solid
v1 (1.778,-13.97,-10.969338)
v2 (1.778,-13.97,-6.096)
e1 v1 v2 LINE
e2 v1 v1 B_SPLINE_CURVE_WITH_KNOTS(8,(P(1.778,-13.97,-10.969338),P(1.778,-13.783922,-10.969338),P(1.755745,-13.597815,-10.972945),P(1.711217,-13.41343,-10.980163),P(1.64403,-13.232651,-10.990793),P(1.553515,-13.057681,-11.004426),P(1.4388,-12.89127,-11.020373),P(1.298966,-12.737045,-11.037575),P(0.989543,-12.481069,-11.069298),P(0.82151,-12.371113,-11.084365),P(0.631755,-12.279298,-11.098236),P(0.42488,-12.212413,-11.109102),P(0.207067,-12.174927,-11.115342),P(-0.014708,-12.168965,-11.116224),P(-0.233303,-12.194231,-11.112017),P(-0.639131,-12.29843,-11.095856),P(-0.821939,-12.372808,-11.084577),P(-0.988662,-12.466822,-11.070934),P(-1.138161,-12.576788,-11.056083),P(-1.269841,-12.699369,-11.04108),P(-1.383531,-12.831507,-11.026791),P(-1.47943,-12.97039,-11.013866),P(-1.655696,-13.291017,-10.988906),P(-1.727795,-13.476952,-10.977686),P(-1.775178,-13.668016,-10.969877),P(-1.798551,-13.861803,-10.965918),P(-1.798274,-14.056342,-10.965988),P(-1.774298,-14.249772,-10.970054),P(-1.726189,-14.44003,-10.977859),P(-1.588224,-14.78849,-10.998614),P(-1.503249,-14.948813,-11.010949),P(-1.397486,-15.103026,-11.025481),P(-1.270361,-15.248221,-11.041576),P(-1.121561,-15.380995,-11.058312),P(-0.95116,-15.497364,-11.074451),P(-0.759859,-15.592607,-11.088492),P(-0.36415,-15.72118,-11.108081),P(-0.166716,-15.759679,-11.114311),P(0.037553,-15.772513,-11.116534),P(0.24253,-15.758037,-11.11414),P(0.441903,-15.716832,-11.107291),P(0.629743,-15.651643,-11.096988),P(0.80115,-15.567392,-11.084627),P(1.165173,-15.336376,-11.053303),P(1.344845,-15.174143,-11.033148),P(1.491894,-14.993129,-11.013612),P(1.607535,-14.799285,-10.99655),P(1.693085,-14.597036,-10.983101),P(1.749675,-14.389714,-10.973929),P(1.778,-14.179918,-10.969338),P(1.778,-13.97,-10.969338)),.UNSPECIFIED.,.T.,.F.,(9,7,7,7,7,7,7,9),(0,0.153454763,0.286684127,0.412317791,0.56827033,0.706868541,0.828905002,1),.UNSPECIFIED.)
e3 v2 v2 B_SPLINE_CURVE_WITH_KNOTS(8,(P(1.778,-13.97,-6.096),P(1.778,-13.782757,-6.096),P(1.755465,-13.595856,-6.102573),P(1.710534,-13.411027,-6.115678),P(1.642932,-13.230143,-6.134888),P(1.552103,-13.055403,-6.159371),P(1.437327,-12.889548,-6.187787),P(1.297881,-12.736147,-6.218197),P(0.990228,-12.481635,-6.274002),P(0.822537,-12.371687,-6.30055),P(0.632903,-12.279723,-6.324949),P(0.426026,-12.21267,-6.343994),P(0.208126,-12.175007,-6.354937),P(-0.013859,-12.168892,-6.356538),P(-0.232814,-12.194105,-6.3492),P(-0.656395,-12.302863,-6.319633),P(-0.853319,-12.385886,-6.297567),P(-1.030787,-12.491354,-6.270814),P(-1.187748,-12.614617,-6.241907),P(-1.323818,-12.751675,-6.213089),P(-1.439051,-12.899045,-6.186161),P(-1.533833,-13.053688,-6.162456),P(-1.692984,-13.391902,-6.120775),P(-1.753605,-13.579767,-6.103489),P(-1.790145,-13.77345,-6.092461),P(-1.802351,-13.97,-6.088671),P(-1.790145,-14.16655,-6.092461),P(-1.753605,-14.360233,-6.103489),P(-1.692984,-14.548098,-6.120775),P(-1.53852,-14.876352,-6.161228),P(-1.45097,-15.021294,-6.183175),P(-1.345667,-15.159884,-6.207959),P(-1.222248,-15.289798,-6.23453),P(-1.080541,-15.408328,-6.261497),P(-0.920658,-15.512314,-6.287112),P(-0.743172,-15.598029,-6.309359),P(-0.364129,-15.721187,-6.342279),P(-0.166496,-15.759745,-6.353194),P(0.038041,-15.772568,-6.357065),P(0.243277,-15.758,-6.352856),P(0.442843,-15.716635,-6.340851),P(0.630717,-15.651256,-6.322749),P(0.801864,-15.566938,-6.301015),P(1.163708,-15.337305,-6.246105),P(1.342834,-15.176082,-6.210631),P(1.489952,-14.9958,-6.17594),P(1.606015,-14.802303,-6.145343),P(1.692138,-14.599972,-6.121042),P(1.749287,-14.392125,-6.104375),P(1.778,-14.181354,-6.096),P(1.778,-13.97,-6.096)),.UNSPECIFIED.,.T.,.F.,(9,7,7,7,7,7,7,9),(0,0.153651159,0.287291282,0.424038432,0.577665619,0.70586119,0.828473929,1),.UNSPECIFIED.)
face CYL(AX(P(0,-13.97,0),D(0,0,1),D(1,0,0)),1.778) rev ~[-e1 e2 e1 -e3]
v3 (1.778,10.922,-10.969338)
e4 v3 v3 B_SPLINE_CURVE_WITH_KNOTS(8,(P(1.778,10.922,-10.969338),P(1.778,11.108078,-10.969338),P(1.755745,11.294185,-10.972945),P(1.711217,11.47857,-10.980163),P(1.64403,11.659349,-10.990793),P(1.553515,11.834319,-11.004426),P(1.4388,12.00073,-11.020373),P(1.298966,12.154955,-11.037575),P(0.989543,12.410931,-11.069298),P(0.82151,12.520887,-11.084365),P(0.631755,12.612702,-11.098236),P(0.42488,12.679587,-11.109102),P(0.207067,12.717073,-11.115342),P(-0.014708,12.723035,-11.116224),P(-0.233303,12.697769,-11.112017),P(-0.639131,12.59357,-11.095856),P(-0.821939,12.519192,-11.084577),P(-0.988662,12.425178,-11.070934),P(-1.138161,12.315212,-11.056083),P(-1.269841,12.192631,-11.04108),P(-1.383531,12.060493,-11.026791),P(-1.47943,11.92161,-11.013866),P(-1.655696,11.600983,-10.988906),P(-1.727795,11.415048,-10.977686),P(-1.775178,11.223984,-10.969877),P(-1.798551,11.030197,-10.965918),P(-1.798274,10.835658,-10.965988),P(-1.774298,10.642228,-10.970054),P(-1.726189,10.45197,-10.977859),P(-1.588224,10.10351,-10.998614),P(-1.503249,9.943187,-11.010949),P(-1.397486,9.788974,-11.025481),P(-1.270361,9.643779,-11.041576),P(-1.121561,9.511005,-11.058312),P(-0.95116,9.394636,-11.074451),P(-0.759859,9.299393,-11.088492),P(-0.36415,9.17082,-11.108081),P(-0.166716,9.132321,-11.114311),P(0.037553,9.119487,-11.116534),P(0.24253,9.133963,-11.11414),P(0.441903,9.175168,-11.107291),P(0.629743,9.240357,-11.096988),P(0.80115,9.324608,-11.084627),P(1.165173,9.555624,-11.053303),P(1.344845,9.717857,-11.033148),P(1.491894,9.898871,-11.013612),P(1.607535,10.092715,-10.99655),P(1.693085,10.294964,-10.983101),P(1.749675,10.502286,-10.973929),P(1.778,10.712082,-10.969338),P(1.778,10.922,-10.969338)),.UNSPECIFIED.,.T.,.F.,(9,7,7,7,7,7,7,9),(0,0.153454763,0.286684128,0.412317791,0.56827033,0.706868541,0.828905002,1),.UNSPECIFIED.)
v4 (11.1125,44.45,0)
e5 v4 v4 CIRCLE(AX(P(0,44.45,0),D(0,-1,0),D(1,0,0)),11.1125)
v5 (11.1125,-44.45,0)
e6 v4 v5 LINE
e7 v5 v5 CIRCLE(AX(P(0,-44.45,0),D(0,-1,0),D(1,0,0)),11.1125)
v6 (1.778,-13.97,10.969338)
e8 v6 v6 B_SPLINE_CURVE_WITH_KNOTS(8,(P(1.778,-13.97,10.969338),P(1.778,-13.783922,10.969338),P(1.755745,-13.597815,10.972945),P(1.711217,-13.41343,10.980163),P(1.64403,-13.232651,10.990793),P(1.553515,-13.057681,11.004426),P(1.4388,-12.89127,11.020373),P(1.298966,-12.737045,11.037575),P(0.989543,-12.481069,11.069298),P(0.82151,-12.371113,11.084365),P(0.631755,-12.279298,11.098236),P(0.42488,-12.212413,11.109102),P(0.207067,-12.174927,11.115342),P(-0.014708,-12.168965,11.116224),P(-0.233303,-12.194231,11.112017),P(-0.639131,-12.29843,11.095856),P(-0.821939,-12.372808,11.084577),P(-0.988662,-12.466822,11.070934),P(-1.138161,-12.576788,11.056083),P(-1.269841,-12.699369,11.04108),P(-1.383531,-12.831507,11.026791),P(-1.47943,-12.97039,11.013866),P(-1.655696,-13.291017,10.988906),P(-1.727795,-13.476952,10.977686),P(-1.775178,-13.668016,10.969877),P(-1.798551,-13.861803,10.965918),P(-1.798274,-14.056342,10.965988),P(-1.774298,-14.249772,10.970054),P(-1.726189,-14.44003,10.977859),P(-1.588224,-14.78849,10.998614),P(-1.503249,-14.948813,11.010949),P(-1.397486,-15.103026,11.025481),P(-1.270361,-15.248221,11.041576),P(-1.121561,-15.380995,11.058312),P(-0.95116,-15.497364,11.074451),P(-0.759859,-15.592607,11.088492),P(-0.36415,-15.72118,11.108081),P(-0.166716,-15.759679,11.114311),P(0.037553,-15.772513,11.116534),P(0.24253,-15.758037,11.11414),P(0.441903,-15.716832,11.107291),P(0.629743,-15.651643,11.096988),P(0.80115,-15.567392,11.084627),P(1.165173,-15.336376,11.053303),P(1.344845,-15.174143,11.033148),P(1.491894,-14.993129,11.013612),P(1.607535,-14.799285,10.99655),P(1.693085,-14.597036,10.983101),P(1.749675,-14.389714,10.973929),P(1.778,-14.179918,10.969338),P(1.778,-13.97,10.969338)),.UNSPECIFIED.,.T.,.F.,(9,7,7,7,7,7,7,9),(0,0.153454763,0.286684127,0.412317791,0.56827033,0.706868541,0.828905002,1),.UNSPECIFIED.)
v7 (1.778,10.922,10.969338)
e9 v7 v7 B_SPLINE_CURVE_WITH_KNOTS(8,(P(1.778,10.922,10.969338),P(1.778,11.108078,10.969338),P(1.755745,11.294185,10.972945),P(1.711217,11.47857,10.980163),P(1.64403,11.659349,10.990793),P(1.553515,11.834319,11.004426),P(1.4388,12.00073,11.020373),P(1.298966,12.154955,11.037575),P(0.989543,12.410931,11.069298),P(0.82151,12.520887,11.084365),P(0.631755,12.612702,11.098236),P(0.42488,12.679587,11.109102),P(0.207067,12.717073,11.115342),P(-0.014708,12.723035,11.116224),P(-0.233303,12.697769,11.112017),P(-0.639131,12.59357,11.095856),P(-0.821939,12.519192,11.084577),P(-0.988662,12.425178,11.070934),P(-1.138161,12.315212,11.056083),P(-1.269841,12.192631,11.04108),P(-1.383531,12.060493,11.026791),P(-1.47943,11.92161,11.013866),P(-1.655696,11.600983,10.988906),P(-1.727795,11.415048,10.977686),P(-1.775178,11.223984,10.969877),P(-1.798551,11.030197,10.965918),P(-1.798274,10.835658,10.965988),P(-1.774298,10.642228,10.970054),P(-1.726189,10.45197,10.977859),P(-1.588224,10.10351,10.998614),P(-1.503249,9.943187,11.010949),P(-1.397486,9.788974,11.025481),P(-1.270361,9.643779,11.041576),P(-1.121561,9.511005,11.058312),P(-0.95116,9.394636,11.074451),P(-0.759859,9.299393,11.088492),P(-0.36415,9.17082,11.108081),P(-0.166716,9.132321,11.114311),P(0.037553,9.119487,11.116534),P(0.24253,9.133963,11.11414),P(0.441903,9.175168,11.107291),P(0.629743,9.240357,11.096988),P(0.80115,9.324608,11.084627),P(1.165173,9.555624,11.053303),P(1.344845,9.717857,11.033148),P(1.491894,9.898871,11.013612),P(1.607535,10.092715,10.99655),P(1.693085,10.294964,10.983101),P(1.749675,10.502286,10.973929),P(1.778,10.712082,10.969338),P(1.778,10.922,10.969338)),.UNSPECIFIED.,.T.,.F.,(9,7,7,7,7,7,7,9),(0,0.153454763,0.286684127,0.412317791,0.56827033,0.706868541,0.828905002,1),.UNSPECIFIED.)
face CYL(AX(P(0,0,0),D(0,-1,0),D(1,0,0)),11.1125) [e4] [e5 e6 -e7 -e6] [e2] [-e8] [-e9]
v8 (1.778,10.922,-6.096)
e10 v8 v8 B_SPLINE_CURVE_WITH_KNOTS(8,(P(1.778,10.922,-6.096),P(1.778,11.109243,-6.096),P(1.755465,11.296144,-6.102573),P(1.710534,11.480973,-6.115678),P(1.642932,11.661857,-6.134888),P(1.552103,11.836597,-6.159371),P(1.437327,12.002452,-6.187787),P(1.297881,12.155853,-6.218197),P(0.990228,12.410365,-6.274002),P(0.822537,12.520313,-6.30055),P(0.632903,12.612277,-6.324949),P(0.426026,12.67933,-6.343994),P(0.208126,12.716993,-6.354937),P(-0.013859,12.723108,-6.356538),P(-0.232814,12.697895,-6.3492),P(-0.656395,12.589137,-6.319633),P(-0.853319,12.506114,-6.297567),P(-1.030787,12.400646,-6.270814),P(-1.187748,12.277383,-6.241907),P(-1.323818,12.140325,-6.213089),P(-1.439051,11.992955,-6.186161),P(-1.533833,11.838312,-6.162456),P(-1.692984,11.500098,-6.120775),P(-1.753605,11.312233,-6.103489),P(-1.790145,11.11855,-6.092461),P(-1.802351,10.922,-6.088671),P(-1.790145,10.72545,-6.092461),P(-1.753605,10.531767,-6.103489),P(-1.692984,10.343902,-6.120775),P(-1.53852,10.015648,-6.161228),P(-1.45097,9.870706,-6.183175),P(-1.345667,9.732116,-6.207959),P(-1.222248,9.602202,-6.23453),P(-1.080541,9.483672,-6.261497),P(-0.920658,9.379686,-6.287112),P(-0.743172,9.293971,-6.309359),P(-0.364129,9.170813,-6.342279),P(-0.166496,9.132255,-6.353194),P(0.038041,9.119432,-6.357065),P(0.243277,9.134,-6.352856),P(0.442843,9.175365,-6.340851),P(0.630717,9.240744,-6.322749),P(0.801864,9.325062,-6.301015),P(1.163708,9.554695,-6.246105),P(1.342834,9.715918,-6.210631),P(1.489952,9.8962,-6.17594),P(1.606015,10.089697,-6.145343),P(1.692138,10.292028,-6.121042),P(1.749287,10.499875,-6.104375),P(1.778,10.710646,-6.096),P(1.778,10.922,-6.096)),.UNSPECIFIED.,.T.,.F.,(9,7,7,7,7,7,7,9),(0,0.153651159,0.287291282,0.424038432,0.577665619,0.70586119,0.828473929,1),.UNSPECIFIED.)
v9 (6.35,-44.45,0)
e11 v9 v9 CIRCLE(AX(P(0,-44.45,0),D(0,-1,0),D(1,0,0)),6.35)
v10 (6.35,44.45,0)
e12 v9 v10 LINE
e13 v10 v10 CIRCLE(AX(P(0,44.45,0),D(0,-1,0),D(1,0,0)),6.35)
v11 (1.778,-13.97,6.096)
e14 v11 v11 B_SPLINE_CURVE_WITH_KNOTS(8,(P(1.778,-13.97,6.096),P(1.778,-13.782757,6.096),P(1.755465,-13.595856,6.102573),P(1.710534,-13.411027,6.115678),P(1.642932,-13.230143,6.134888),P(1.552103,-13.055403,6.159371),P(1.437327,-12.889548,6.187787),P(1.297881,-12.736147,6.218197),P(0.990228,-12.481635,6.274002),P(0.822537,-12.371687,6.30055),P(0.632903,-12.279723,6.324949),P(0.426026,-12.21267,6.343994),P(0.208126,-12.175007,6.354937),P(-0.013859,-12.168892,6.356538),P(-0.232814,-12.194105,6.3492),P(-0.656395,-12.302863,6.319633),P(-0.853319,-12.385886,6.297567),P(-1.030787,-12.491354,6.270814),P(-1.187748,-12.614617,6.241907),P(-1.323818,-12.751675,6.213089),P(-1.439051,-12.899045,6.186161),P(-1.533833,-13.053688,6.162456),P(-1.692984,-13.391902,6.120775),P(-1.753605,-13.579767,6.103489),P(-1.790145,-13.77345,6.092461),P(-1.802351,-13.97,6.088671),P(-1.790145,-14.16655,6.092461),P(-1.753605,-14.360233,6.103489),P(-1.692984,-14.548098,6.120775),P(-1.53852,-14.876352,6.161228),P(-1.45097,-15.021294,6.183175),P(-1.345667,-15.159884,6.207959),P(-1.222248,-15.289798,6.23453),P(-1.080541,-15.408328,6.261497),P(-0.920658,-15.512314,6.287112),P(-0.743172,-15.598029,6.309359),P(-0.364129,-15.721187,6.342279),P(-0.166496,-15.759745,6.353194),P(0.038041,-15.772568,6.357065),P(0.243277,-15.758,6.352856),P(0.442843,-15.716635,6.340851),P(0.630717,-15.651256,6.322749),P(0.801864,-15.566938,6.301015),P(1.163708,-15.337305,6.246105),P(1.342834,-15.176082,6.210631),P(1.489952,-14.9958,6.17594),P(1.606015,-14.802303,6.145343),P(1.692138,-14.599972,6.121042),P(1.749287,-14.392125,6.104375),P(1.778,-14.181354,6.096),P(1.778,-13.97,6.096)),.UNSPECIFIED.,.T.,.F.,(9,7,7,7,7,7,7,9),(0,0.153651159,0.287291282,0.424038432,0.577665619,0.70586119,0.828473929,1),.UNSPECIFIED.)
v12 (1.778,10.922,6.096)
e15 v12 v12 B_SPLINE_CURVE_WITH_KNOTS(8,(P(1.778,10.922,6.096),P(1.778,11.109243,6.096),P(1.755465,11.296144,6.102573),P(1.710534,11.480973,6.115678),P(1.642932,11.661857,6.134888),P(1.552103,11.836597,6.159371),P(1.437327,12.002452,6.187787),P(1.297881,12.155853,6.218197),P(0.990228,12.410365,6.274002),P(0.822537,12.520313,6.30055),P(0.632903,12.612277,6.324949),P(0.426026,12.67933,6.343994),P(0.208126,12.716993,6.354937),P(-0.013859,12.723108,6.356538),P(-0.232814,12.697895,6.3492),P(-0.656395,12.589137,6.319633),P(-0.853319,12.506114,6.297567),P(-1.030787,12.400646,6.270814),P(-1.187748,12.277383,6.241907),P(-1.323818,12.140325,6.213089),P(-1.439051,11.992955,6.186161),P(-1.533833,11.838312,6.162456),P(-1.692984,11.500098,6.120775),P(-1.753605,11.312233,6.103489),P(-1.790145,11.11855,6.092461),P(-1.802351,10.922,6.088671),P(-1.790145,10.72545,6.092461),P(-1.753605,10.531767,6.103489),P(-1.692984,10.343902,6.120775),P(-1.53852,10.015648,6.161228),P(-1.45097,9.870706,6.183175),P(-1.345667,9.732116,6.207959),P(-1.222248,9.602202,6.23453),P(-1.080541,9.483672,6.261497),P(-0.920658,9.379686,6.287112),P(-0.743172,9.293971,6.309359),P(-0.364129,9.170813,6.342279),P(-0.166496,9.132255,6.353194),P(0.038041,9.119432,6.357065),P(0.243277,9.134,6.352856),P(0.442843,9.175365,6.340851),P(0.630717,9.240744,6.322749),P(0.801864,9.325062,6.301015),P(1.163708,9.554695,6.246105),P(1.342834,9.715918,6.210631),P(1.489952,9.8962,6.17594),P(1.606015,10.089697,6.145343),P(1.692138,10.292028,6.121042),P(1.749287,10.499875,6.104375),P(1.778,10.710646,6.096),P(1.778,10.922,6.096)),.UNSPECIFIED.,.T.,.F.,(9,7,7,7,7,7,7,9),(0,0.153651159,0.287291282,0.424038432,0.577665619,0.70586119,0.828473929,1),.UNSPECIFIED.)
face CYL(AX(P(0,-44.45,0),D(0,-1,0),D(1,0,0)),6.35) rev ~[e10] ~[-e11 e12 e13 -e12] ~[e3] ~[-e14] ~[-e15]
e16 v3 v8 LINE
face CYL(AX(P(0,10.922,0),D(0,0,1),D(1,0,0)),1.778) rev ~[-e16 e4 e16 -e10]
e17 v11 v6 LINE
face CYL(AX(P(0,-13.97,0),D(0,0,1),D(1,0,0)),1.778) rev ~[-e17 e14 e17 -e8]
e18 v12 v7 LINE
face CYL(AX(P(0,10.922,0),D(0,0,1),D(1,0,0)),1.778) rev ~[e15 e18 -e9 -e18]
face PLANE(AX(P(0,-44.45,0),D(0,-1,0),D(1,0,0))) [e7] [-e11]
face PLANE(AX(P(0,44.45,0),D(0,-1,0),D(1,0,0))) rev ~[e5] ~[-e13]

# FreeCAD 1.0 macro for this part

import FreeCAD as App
import Part
import Sketcher
from FreeCAD import Vector
Q = App.Units.Quantity

doc = App.newDocument("Part")
body = doc.addObject("PartDesign::Body", "Body")

# Sketch on XZ plane
sketch1 = body.newObject("Sketcher::SketchObject", "Sketch")
sketch1.AttachmentSupport = (doc.getObject("XZ_Plane"), [""])
sketch1.MapMode = "FlatFace"
sketch1.addGeometry(Part.Circle(Vector(0, 0, 0), Vector(0, 0, 1), 11), False)
sketch1.addConstraint([
    Sketcher.Constraint("Coincident", 0, 3, -1, 1),
    Sketcher.Constraint("Diameter", 0, Q("0.875 in")),
])
pad1 = body.newObject("PartDesign::Pad", "Pad")
pad1.Profile = sketch1
pad1.Length = Q("3.5 in")
pad1.Midplane = True

# Sketch on XZ plane
sketch2 = body.newObject("Sketcher::SketchObject", "Sketch001")
sketch2.AttachmentSupport = (doc.getObject("XZ_Plane"), [""])
sketch2.MapMode = "FlatFace"
sketch2.AttachmentOffset = App.Placement(Vector(0, 0, 1.75 * 25.4), App.Rotation())
sketch2.addGeometry(Part.Circle(Vector(0, 0, 0), Vector(0, 0, 1), 6), False)
sketch2.addConstraint([
    Sketcher.Constraint("Coincident", 0, 3, -1, 1),
    Sketcher.Constraint("Diameter", 0, Q("0.5 in")),
])
pocket1 = body.newObject("PartDesign::Pocket", "Pocket")
pocket1.Profile = sketch2
pocket1.Length = Q("3.5 in")

# Sketch on XY plane
sketch3 = body.newObject("Sketcher::SketchObject", "Sketch002")
sketch3.AttachmentSupport = (doc.getObject("XY_Plane"), [""])
sketch3.MapMode = "FlatFace"
sketch3.addGeometry(Part.Circle(Vector(0, 10.9, 0), Vector(0, 0, 1), 1.8), False)
sketch3.addConstraint([
    Sketcher.Constraint("PointOnObject", 0, 3, -2),
    Sketcher.Constraint("Diameter", 0, Q("0.14 in")),
    Sketcher.Constraint("DistanceY", -1, 1, 0, 3, Q("0.43 in")),
])
pocket2 = body.newObject("PartDesign::Pocket", "Pocket001")
pocket2.Profile = sketch3
pocket2.Length = Q("3.5 in")
pocket2.Midplane = True

# Sketch on XY plane
sketch4 = body.newObject("Sketcher::SketchObject", "Sketch003")
sketch4.AttachmentSupport = (doc.getObject("XY_Plane"), [""])
sketch4.MapMode = "FlatFace"
sketch4.addGeometry(Part.Circle(Vector(0, -14, 0), Vector(0, 0, 1), 1.8), False)
sketch4.addConstraint([
    Sketcher.Constraint("PointOnObject", 0, 3, -2),
    Sketcher.Constraint("Diameter", 0, Q("0.14 in")),
    Sketcher.Constraint("DistanceY", 0, 3, -1, 1, Q("0.55 in")),
])
pocket3 = body.newObject("PartDesign::Pocket", "Pocket002")
pocket3.Profile = sketch4
pocket3.Length = Q("3.5 in")
pocket3.Midplane = True

doc.recompute()
